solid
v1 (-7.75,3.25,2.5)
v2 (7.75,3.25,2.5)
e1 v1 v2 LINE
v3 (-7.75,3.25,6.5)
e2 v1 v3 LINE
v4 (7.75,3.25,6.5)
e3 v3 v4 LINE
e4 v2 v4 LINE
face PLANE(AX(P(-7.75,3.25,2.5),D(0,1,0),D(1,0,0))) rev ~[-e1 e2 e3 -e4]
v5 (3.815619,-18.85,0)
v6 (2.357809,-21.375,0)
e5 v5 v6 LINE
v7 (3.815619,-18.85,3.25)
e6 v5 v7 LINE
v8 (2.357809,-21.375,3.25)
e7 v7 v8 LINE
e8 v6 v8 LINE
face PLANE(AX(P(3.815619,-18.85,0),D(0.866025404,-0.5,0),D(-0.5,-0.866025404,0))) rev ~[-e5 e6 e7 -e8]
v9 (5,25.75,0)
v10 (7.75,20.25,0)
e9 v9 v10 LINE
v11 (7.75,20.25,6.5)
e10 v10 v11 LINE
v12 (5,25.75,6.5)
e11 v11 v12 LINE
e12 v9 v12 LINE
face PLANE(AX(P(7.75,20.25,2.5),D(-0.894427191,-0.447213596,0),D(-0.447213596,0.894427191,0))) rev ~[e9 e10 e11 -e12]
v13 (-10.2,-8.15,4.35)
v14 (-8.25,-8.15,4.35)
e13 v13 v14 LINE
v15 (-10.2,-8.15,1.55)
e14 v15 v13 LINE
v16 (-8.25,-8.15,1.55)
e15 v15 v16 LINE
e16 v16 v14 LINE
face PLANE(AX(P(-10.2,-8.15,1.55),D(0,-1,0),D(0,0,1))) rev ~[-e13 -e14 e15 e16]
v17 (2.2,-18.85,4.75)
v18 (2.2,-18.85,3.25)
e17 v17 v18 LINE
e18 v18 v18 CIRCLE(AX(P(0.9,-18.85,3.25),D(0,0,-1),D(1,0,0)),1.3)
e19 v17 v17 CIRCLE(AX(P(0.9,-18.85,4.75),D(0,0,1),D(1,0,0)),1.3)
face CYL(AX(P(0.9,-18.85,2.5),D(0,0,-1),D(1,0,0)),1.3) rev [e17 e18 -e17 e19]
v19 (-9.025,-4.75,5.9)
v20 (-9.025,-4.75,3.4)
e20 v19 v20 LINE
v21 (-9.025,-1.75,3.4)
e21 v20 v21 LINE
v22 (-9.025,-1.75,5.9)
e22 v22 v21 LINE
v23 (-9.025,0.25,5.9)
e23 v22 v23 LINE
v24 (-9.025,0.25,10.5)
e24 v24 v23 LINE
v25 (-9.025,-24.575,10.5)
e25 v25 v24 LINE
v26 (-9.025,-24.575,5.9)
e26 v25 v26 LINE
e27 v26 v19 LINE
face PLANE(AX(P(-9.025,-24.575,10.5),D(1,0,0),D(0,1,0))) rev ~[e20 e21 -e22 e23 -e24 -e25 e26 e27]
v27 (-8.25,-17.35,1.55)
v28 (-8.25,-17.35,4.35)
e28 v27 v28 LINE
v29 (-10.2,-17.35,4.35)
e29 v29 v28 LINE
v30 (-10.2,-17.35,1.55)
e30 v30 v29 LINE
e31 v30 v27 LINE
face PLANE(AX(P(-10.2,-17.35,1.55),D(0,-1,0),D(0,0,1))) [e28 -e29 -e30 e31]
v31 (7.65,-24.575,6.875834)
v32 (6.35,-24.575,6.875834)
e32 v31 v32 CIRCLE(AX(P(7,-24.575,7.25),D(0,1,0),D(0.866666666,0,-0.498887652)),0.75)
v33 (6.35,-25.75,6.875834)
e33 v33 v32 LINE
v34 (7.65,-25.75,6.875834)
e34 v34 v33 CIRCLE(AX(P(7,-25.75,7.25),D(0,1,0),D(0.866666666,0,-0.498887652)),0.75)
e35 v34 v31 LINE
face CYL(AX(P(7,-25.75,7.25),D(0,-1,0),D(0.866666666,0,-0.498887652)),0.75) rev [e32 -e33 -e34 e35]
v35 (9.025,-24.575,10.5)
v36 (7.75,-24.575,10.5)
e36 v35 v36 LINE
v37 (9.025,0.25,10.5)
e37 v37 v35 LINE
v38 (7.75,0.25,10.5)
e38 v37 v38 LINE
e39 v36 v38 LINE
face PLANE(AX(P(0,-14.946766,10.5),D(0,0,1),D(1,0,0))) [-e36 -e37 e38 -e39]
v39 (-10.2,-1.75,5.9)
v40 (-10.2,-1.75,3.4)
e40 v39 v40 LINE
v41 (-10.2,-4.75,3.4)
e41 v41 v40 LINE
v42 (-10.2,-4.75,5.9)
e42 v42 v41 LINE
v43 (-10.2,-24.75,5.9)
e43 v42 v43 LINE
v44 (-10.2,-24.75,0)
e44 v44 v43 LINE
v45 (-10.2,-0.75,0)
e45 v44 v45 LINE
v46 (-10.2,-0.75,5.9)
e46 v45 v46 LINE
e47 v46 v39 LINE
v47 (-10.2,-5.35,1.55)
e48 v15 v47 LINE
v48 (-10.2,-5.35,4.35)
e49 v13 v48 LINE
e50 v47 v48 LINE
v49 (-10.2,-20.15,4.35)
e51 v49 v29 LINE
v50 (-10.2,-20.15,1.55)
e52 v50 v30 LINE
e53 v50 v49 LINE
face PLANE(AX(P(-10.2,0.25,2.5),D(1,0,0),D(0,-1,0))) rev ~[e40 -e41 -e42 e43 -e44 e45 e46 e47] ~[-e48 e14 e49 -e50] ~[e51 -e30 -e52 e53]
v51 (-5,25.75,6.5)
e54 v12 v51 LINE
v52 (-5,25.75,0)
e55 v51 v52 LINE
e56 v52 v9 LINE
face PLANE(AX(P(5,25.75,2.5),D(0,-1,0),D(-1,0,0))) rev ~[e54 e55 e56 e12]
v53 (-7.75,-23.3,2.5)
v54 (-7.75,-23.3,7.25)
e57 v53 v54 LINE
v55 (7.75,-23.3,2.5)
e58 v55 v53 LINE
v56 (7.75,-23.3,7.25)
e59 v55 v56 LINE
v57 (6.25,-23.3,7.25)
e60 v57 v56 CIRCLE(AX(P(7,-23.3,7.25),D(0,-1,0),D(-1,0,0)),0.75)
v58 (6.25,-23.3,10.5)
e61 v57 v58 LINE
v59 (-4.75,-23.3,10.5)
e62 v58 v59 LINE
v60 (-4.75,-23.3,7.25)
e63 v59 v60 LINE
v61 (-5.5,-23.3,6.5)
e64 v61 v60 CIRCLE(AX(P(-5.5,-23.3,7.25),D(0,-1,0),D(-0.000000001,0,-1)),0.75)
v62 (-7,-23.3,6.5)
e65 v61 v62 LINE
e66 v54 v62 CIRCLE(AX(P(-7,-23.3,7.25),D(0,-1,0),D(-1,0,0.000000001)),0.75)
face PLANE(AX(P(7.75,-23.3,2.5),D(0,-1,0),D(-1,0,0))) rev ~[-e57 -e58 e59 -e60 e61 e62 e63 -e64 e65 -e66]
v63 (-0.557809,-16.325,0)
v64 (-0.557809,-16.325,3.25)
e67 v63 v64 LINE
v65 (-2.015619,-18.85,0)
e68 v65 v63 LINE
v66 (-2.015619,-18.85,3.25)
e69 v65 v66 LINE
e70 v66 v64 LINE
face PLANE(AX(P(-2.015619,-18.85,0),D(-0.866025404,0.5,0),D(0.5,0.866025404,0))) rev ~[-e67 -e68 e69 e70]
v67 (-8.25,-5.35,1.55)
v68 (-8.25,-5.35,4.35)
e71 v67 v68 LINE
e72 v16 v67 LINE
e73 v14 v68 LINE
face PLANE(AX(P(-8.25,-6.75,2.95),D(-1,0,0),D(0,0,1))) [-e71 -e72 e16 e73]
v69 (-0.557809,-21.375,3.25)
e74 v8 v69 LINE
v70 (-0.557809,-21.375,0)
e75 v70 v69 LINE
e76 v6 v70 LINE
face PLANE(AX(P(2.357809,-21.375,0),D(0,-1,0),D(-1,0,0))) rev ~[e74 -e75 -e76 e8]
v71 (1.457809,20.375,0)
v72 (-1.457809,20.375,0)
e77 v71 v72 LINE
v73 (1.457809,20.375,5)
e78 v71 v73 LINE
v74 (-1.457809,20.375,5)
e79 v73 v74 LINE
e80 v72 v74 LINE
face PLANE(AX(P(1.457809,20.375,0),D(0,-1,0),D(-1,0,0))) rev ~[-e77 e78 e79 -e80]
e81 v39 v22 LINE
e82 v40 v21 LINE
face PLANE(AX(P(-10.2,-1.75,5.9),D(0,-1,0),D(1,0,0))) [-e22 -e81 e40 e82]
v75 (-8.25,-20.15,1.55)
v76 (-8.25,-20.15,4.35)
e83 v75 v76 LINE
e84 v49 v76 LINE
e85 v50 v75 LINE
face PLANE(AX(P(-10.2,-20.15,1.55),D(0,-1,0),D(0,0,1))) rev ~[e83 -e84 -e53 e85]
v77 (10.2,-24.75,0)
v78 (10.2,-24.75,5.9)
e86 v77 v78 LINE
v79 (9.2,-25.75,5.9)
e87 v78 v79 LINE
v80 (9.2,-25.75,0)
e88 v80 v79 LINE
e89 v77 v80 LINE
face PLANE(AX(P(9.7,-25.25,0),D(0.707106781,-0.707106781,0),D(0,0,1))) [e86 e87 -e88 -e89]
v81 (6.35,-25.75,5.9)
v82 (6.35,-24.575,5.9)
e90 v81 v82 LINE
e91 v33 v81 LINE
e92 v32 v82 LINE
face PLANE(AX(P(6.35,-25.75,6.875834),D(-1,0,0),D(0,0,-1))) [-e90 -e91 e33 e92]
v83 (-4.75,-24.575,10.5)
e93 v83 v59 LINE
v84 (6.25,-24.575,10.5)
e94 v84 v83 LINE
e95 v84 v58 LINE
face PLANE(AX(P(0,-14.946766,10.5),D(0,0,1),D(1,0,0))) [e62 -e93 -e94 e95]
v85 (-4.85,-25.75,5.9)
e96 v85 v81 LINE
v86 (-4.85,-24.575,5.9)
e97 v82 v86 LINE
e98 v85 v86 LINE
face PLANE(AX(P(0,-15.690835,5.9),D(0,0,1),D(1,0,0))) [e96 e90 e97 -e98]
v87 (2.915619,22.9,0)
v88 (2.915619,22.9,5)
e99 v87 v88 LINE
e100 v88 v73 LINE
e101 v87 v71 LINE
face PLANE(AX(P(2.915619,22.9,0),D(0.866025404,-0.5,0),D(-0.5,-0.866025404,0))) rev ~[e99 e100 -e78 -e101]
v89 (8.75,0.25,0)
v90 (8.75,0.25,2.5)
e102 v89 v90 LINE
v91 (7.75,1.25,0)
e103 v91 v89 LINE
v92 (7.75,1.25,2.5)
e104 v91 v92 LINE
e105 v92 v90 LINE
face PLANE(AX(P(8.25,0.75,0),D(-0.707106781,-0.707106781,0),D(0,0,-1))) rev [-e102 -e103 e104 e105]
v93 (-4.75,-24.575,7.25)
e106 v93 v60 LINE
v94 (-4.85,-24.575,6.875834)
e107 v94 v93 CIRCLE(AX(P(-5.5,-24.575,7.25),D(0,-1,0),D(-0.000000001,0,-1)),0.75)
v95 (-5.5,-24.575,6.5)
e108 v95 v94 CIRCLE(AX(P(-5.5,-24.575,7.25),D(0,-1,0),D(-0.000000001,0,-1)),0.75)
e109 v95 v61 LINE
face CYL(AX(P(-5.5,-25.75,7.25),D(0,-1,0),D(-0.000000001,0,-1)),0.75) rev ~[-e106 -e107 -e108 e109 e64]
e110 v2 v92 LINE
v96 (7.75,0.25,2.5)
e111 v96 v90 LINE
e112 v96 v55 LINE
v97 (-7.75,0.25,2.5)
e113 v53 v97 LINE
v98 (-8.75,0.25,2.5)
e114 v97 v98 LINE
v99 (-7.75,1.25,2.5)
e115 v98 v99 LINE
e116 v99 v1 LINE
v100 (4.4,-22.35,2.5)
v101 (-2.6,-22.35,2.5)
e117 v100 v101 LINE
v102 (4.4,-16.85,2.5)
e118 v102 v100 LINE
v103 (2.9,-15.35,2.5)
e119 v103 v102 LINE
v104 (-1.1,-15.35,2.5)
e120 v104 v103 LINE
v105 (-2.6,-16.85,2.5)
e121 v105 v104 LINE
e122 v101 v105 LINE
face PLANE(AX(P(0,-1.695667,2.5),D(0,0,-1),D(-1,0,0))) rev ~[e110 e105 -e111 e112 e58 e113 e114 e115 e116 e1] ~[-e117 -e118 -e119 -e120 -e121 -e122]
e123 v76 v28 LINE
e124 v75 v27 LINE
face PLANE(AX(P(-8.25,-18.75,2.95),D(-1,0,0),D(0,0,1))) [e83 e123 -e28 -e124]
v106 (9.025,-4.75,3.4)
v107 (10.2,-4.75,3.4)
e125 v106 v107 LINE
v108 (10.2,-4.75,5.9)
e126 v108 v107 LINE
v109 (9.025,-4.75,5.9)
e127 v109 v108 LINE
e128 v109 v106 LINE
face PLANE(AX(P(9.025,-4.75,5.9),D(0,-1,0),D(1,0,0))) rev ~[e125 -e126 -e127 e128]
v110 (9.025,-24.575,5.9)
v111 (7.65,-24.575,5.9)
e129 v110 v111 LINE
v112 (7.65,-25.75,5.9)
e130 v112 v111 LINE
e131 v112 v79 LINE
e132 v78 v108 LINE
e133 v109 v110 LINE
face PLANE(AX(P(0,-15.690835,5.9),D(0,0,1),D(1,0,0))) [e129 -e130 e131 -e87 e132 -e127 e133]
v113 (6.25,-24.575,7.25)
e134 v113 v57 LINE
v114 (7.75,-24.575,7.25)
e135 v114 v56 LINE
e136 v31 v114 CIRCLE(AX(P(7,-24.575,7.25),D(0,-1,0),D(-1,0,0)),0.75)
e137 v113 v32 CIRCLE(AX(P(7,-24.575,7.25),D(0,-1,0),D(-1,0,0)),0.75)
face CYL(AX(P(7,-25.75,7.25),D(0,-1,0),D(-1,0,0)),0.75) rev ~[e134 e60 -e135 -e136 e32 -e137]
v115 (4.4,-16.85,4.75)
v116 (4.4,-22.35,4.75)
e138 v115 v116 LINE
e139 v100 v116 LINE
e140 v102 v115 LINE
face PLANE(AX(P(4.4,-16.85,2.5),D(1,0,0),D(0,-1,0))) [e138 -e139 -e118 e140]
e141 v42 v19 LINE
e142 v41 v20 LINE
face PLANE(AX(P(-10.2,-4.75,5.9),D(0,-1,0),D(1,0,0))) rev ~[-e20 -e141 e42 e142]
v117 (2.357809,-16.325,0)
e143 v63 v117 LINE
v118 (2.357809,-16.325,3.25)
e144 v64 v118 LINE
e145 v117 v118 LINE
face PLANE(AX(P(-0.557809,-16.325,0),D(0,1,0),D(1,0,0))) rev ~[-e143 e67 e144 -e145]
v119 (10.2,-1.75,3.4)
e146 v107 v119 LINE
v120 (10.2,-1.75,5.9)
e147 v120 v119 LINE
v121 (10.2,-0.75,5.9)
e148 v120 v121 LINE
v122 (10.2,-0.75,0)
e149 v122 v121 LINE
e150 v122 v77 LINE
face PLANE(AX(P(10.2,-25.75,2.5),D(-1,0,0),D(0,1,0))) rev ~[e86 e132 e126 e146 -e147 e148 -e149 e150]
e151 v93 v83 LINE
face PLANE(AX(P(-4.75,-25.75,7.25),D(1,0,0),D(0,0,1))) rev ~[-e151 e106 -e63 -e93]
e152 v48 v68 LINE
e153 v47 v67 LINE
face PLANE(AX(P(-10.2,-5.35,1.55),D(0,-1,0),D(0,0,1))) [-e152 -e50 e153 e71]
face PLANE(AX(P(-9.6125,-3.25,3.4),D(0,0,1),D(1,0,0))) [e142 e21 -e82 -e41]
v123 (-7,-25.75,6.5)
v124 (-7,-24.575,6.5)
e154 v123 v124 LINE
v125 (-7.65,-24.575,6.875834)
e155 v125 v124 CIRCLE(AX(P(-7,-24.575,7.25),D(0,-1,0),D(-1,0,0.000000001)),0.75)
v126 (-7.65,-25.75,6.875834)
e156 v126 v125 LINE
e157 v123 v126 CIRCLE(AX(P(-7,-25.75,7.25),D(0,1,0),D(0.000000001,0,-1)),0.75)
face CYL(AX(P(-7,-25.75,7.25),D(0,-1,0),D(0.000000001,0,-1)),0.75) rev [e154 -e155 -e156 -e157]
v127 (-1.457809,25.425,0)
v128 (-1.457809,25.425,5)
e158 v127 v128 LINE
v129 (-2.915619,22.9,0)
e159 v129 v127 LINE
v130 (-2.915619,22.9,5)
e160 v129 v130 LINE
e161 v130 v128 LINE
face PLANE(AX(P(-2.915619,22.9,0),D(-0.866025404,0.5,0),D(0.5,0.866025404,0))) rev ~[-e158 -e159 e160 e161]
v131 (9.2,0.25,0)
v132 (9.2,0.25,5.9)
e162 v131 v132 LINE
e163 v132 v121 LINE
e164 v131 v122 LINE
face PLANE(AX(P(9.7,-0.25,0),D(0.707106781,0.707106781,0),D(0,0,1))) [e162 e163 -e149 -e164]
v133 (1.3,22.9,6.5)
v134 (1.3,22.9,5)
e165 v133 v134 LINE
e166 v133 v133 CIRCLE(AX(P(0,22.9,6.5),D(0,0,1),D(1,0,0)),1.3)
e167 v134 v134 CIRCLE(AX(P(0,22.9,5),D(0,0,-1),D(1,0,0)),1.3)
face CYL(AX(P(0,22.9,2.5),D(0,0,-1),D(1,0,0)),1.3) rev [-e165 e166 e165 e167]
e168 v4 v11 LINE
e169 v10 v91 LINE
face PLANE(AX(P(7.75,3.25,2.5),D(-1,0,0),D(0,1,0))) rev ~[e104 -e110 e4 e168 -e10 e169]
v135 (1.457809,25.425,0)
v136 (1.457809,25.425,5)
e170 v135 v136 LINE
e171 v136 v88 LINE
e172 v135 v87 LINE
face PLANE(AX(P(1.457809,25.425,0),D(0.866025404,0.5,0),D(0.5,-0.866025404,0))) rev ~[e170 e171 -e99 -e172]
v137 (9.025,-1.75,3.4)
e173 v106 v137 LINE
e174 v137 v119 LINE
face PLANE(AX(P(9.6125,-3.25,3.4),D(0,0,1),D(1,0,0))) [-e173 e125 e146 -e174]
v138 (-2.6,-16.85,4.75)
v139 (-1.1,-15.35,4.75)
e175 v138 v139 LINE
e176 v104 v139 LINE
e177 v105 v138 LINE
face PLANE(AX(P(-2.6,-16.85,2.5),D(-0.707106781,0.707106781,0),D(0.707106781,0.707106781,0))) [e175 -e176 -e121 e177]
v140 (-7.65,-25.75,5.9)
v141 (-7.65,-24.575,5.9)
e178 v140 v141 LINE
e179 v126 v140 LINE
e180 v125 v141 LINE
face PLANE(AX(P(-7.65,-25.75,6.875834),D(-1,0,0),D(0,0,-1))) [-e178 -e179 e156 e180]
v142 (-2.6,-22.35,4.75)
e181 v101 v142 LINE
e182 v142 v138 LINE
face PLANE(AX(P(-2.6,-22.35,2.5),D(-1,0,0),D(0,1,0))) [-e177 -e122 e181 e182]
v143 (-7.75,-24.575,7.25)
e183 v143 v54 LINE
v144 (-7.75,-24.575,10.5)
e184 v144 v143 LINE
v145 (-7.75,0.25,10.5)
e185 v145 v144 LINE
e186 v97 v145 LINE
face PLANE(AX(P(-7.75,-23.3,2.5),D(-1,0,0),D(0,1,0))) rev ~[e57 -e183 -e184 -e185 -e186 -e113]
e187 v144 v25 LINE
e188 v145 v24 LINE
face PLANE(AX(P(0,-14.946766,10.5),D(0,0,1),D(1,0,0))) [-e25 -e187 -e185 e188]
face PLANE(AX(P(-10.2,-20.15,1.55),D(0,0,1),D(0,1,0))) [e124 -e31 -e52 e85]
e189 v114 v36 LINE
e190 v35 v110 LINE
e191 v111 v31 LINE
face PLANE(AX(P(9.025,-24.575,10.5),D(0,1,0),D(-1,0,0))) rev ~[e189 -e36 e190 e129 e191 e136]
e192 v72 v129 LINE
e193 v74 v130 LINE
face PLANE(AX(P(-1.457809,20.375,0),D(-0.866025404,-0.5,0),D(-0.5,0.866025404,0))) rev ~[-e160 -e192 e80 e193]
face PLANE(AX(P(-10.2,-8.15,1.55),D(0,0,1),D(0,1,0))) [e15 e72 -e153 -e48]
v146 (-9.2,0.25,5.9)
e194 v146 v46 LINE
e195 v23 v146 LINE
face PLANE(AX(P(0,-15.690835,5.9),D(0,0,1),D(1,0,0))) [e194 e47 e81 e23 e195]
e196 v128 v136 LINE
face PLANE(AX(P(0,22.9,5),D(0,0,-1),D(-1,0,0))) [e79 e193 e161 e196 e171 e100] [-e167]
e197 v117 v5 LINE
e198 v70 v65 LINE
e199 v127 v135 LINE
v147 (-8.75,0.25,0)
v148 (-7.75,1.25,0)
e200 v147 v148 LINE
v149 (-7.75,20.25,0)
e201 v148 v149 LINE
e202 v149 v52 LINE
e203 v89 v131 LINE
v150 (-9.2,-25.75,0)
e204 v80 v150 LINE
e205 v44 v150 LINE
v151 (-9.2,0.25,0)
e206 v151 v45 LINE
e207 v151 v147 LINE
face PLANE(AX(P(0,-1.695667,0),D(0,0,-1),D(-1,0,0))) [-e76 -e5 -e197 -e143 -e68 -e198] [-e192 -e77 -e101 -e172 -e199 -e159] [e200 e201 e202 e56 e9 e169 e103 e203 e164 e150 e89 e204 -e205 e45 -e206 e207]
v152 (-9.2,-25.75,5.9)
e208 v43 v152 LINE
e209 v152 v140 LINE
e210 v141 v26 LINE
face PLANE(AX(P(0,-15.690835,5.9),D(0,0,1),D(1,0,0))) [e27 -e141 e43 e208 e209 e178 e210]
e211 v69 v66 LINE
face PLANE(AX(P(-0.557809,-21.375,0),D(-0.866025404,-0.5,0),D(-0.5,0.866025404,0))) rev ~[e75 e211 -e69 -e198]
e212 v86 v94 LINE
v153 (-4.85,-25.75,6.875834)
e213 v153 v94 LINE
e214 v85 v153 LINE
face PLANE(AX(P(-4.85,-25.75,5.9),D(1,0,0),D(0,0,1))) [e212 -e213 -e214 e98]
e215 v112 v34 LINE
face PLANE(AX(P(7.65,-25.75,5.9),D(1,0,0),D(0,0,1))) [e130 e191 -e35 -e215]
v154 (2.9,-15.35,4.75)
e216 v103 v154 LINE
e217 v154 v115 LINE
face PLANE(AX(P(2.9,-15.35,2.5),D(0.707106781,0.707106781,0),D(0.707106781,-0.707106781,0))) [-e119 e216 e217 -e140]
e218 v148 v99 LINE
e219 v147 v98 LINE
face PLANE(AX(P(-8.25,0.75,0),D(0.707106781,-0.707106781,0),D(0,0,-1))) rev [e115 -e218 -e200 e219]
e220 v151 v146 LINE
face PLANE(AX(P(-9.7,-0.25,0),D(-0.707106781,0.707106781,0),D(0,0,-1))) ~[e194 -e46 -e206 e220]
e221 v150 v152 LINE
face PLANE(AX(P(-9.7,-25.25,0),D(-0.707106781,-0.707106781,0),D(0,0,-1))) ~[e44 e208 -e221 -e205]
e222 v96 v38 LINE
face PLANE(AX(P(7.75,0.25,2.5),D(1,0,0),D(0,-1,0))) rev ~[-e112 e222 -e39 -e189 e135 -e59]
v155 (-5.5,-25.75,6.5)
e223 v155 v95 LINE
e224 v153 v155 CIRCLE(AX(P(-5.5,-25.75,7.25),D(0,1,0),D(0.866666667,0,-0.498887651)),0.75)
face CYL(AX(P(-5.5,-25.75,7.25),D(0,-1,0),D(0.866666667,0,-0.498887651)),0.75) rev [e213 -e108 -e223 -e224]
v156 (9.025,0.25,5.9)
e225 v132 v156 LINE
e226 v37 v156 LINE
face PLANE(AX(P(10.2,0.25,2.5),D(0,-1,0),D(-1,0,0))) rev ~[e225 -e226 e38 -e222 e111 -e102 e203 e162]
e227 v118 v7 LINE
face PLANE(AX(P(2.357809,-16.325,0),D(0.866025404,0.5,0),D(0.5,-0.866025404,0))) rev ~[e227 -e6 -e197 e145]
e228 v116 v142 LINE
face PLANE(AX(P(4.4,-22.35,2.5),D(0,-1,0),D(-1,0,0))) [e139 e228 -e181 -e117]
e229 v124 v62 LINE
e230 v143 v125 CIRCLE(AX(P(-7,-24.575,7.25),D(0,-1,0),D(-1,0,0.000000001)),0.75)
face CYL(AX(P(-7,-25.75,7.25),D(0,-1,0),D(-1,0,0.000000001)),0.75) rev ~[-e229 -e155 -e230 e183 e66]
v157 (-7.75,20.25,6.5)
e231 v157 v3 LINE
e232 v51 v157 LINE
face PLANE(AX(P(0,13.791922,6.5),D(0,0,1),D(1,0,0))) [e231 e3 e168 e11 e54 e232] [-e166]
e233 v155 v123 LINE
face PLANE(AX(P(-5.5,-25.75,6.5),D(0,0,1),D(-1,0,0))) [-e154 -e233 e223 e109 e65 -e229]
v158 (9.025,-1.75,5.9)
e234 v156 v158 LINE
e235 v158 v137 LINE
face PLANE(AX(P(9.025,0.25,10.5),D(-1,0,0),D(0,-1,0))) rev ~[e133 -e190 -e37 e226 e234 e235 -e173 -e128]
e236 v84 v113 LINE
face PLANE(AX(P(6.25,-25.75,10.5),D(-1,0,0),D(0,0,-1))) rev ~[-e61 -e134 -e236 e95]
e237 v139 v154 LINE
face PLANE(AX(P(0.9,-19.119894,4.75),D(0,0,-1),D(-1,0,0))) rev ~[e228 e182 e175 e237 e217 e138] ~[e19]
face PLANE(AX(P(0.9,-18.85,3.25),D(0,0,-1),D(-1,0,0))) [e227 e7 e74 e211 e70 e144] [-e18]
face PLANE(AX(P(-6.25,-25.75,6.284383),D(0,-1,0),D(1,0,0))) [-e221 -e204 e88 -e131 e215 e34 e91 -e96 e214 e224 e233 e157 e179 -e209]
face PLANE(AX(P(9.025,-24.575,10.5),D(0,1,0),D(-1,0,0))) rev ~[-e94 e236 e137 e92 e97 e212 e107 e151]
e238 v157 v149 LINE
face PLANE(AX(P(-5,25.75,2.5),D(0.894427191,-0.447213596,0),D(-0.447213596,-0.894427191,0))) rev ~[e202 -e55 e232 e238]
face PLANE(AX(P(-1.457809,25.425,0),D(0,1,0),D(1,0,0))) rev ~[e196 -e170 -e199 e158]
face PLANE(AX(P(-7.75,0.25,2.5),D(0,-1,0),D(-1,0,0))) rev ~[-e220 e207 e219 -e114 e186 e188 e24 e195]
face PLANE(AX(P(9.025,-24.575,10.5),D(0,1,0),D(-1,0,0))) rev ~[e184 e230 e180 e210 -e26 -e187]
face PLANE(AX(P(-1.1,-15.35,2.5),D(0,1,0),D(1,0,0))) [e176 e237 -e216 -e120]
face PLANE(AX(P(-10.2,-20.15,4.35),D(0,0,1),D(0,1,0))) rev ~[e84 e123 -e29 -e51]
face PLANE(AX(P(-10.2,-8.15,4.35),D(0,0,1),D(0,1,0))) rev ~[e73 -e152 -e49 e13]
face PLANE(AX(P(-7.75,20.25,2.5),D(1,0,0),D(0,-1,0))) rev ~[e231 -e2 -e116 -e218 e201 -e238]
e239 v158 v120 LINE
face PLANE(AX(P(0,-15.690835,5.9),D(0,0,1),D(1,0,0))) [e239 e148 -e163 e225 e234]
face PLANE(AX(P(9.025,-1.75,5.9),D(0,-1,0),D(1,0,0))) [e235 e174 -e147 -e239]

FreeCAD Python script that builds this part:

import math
import FreeCAD as App
import Part
import Sketcher
Q = App.Units.Quantity


def edges_at(feature, points):
    """Names of the edges that pass closest to the given points."""
    edges = feature.Shape.Edges
    near = lambda p: min(range(len(edges)), key=lambda i: edges[i].distToShape(Part.Vertex(*p))[0])
    return sorted({f"Edge{near(p) + 1}" for p in points})

doc = App.newDocument("Part")
body = doc.addObject("PartDesign::Body", "Body")

# Sketch on XY plane
sketch1 = body.newObject("Sketcher::SketchObject", "Sketch")
sketch1.AttachmentSupport = (doc.getObject("XY_Plane"), [""])
sketch1.MapMode = "FlatFace"
sketch1.addGeometry([
    Part.LineSegment(App.Vector(5, 25.8, 0), App.Vector(-5, 25.8, 0)),  # 0
    Part.LineSegment(App.Vector(-5, 25.8, 0), App.Vector(-7.8, 20.2, 0)),  # 1
    Part.LineSegment(App.Vector(-7.8, 20.2, 0), App.Vector(-7.8, 0.2, 0)),  # 2
    Part.LineSegment(App.Vector(-7.8, 0.2, 0), App.Vector(-10.2, 0.2, 0)),  # 3
    Part.LineSegment(App.Vector(-10.2, 0.2, 0), App.Vector(-10.2, -25.8, 0)),  # 4
    Part.LineSegment(App.Vector(-10.2, -25.8, 0), App.Vector(10.2, -25.8, 0)),  # 5
    Part.LineSegment(App.Vector(10.2, -25.8, 0), App.Vector(10.2, 0.2, 0)),  # 6
    Part.LineSegment(App.Vector(10.2, 0.2, 0), App.Vector(7.8, 0.2, 0)),  # 7
    Part.LineSegment(App.Vector(7.8, 0.2, 0), App.Vector(7.8, 20.2, 0)),  # 8
    Part.LineSegment(App.Vector(7.8, 20.2, 0), App.Vector(5, 25.8, 0)),  # 9
    Part.Circle(App.Vector(0.9, -18.9, 0), App.Vector(0, 0, 1), 1.3),  # 10
    Part.Circle(App.Vector(0, 22.9, 0), App.Vector(0, 0, 1), 1.3),  # 11
], False)
sketch1.addConstraint([
    Sketcher.Constraint("Coincident", 0, 2, 1, 1),
    Sketcher.Constraint("Coincident", 1, 2, 2, 1),
    Sketcher.Constraint("Coincident", 2, 2, 3, 1),
    Sketcher.Constraint("Coincident", 3, 2, 4, 1),
    Sketcher.Constraint("Coincident", 4, 2, 5, 1),
    Sketcher.Constraint("Coincident", 5, 2, 6, 1),
    Sketcher.Constraint("Coincident", 6, 2, 7, 1),
    Sketcher.Constraint("Coincident", 7, 2, 8, 1),
    Sketcher.Constraint("Coincident", 8, 2, 9, 1),
    Sketcher.Constraint("Coincident", 9, 2, 0, 1),
    Sketcher.Constraint("Horizontal", 0),
    Sketcher.Constraint("Vertical", 2),
    Sketcher.Constraint("Horizontal", 3),
    Sketcher.Constraint("Vertical", 4),
    Sketcher.Constraint("Horizontal", 5),
    Sketcher.Constraint("Vertical", 6),
    Sketcher.Constraint("Horizontal", 7),
    Sketcher.Constraint("Vertical", 8),
    Sketcher.Constraint("Equal", 10, 11),
    Sketcher.Constraint("Symmetric", 3, 2, 6, 2, -2),
    Sketcher.Constraint("Symmetric", 1, 2, 8, 2, -2),
    Sketcher.Constraint("PointOnObject", 11, 3, -2),
    Sketcher.Constraint("Equal", 1, 9),
    Sketcher.Constraint("Diameter", 10, Q("2.6 mm")),
    Sketcher.Constraint("DistanceX", 0, 2, 0, 1, Q("10 mm")),
    Sketcher.Constraint("DistanceY", 2, 2, 2, 1, Q("20 mm")),
    Sketcher.Constraint("DistanceY", 4, 2, 4, 1, Q("26 mm")),
    Sketcher.Constraint("DistanceX", 5, 1, 5, 2, Q("20.4 mm")),
    Sketcher.Constraint("DistanceX", 3, 2, 3, 1, Q("2.45 mm")),
    Sketcher.Constraint("DistanceX", -1, 1, 10, 3, Q("0.9 mm")),
    Sketcher.Constraint("DistanceY", -1, 1, 11, 3, Q("22.9 mm")),
    Sketcher.Constraint("DistanceY", 10, 3, 0, 2, Q("44.6 mm")),
    Sketcher.Constraint("DistanceY", 1, 2, 0, 2, Q("5.5 mm")),
    Sketcher.Constraint("DistanceY", 10, 3, -1, 1, Q("18.85 mm")),
])
pad1 = body.newObject("PartDesign::Pad", "Pad")
pad1.Profile = sketch1
pad1.Length = 2.5

# Sketch on XY plane
sketch2 = body.newObject("Sketcher::SketchObject", "Sketch001")
sketch2.AttachmentSupport = (doc.getObject("XY_Plane"), [""])
sketch2.MapMode = "FlatFace"
sketch2.AttachmentOffset = App.Placement(App.Vector(0, 0, 2.5), App.Rotation())
sketch2.addGeometry([
    Part.LineSegment(App.Vector(-7.8, 3.2, 0), App.Vector(7.8, 3.2, 0)),  # 0
    Part.LineSegment(App.Vector(7.8, 3.2, 0), App.Vector(7.8, 20.2, 0)),  # 1
    Part.LineSegment(App.Vector(7.8, 20.2, 0), App.Vector(5, 25.8, 0)),  # 2
    Part.LineSegment(App.Vector(5, 25.8, 0), App.Vector(-5, 25.8, 0)),  # 3
    Part.LineSegment(App.Vector(-5, 25.8, 0), App.Vector(-7.8, 20.2, 0)),  # 4
    Part.LineSegment(App.Vector(-7.8, 20.2, 0), App.Vector(-7.8, 3.2, 0)),  # 5
    Part.Circle(App.Vector(0, 22.9, 0), App.Vector(0, 0, 1), 1.3),  # 6
], False)
sketch2.addConstraint([
    Sketcher.Constraint("Coincident", 0, 2, 1, 1),
    Sketcher.Constraint("Coincident", 1, 2, 2, 1),
    Sketcher.Constraint("Coincident", 2, 2, 3, 1),
    Sketcher.Constraint("Coincident", 3, 2, 4, 1),
    Sketcher.Constraint("Coincident", 4, 2, 5, 1),
    Sketcher.Constraint("Coincident", 5, 2, 0, 1),
    Sketcher.Constraint("Horizontal", 0),
    Sketcher.Constraint("Vertical", 1),
    Sketcher.Constraint("Horizontal", 3),
    Sketcher.Constraint("Vertical", 5),
    Sketcher.Constraint("Symmetric", 1, 2, 4, 2, -2),
    Sketcher.Constraint("PointOnObject", 6, 3, -2),
    Sketcher.Constraint("Equal", 2, 4),
    Sketcher.Constraint("Diameter", 6, Q("2.6 mm")),
    Sketcher.Constraint("DistanceX", 3, 2, 3, 1, Q("10 mm")),
    Sketcher.Constraint("DistanceY", 1, 1, 1, 2, Q("17 mm")),
    Sketcher.Constraint("DistanceX", 0, 1, 0, 2, Q("15.5 mm")),
    Sketcher.Constraint("DistanceY", -1, 1, 6, 3, Q("22.9 mm")),
    Sketcher.Constraint("DistanceY", 1, 2, 2, 2, Q("5.5 mm")),
    Sketcher.Constraint("DistanceY", -1, 1, 0, 2, Q("3.25 mm")),
])
pad2 = body.newObject("PartDesign::Pad", "Pad001")
pad2.Profile = sketch2
pad2.Length = 4

# Sketch on XY plane
sketch3 = body.newObject("Sketcher::SketchObject", "Sketch002")
sketch3.AttachmentSupport = (doc.getObject("XY_Plane"), [""])
sketch3.MapMode = "FlatFace"
sketch3.AttachmentOffset = App.Placement(App.Vector(0, 0, 2.5), App.Rotation())
sketch3.addGeometry([
    Part.LineSegment(App.Vector(2.9, -15.3, 0), App.Vector(-1.1, -15.3, 0)),  # 0
    Part.LineSegment(App.Vector(-1.1, -15.3, 0), App.Vector(-2.6, -16.9, 0)),  # 1
    Part.LineSegment(App.Vector(-2.6, -16.9, 0), App.Vector(-2.6, -22.4, 0)),  # 2
    Part.LineSegment(App.Vector(-2.6, -22.4, 0), App.Vector(4.4, -22.4, 0)),  # 3
    Part.LineSegment(App.Vector(4.4, -22.4, 0), App.Vector(4.4, -16.9, 0)),  # 4
    Part.LineSegment(App.Vector(4.4, -16.9, 0), App.Vector(2.9, -15.3, 0)),  # 5
    Part.Circle(App.Vector(0.9, -18.9, 0), App.Vector(0, 0, 1), 1.3),  # 6
], False)
sketch3.addConstraint([
    Sketcher.Constraint("Coincident", 0, 2, 1, 1),
    Sketcher.Constraint("Coincident", 1, 2, 2, 1),
    Sketcher.Constraint("Coincident", 2, 2, 3, 1),
    Sketcher.Constraint("Coincident", 3, 2, 4, 1),
    Sketcher.Constraint("Coincident", 4, 2, 5, 1),
    Sketcher.Constraint("Coincident", 5, 2, 0, 1),
    Sketcher.Constraint("Horizontal", 0),
    Sketcher.Constraint("Vertical", 2),
    Sketcher.Constraint("Horizontal", 3),
    Sketcher.Constraint("Vertical", 4),
    Sketcher.Constraint("Perpendicular", 1, 5),
    Sketcher.Constraint("Horizontal", 1, 2, 4, 2),
    Sketcher.Constraint("Equal", 1, 5),
    Sketcher.Constraint("Diameter", 6, Q("2.6 mm")),
    Sketcher.Constraint("DistanceX", 0, 2, 0, 1, Q("4 mm")),
    Sketcher.Constraint("DistanceX", 3, 1, 3, 2, Q("7 mm")),
    Sketcher.Constraint("DistanceY", 2, 2, 2, 1, Q("5.5 mm")),
    Sketcher.Constraint("DistanceX", 0, 2, 6, 3, Q("2 mm")),
    Sketcher.Constraint("DistanceY", 6, 3, 1, 2, Q("2 mm")),
    Sketcher.Constraint("DistanceX", -1, 1, 6, 3, Q("0.9 mm")),
    Sketcher.Constraint("DistanceY", 6, 3, -1, 1, Q("18.85 mm")),
])
pad3 = body.newObject("PartDesign::Pad", "Pad002")
pad3.Profile = sketch3
pad3.Length = 2.25

# Sketch on XY plane
sketch4 = body.newObject("Sketcher::SketchObject", "Sketch003")
sketch4.AttachmentSupport = (doc.getObject("XY_Plane"), [""])
sketch4.MapMode = "FlatFace"
sketch4.addGeometry([
    Part.LineSegment(App.Vector(-2.9, 22.9, 0), App.Vector(-1.5, 25.4, 0)),  # 0
    Part.LineSegment(App.Vector(-1.5, 25.4, 0), App.Vector(1.5, 25.4, 0)),  # 1
    Part.LineSegment(App.Vector(1.5, 25.4, 0), App.Vector(2.9, 22.9, 0)),  # 2
    Part.LineSegment(App.Vector(2.9, 22.9, 0), App.Vector(1.5, 20.4, 0)),  # 3
    Part.LineSegment(App.Vector(1.5, 20.4, 0), App.Vector(-1.5, 20.4, 0)),  # 4
    Part.LineSegment(App.Vector(-1.5, 20.4, 0), App.Vector(-2.9, 22.9, 0)),  # 5
], False)
sketch4.addConstraint([
    Sketcher.Constraint("Coincident", 0, 2, 1, 1),
    Sketcher.Constraint("Coincident", 1, 2, 2, 1),
    Sketcher.Constraint("Coincident", 2, 2, 3, 1),
    Sketcher.Constraint("Coincident", 3, 2, 4, 1),
    Sketcher.Constraint("Coincident", 4, 2, 5, 1),
    Sketcher.Constraint("Coincident", 5, 2, 0, 1),
    Sketcher.Constraint("Horizontal", 1),
    Sketcher.Constraint("Horizontal", 4),
    Sketcher.Constraint("Symmetric", 2, 2, 5, 2, -2),
    Sketcher.Constraint("Parallel", 0, 3),
    Sketcher.Constraint("Parallel", 2, 5),
    Sketcher.Constraint("Vertical", 1, 2, 3, 2),
    Sketcher.Constraint("Vertical", 0, 2, 4, 2),
    Sketcher.Constraint("Angle", 0, Q("60 deg")),
    Sketcher.Constraint("DistanceY", -1, 1, 2, 2, Q("22.9 mm")),
    Sketcher.Constraint("DistanceY", 3, 2, 1, 2, Q("5.05 mm")),
    Sketcher.Constraint("DistanceX", 1, 1, 1, 2, Q("2.915619 mm")),
])
pocket1 = body.newObject("PartDesign::Pocket", "Pocket")
pocket1.Profile = sketch4
pocket1.Length = 5
pocket1.Reversed = True

# Sketch on XY plane
sketch5 = body.newObject("Sketcher::SketchObject", "Sketch004")
sketch5.AttachmentSupport = (doc.getObject("XY_Plane"), [""])
sketch5.MapMode = "FlatFace"
sketch5.addGeometry([
    Part.LineSegment(App.Vector(-2, -18.9, 0), App.Vector(-0.6, -16.3, 0)),  # 0
    Part.LineSegment(App.Vector(-0.6, -16.3, 0), App.Vector(2.4, -16.3, 0)),  # 1
    Part.LineSegment(App.Vector(2.4, -16.3, 0), App.Vector(3.8, -18.9, 0)),  # 2
    Part.LineSegment(App.Vector(3.8, -18.9, 0), App.Vector(2.4, -21.4, 0)),  # 3
    Part.LineSegment(App.Vector(2.4, -21.4, 0), App.Vector(-0.6, -21.4, 0)),  # 4
    Part.LineSegment(App.Vector(-0.6, -21.4, 0), App.Vector(-2, -18.9, 0)),  # 5
], False)
sketch5.addConstraint([
    Sketcher.Constraint("Coincident", 0, 2, 1, 1),
    Sketcher.Constraint("Coincident", 1, 2, 2, 1),
    Sketcher.Constraint("Coincident", 2, 2, 3, 1),
    Sketcher.Constraint("Coincident", 3, 2, 4, 1),
    Sketcher.Constraint("Coincident", 4, 2, 5, 1),
    Sketcher.Constraint("Coincident", 5, 2, 0, 1),
    Sketcher.Constraint("Horizontal", 1),
    Sketcher.Constraint("Horizontal", 4),
    Sketcher.Constraint("Parallel", 0, 3),
    Sketcher.Constraint("Parallel", 2, 5),
    Sketcher.Constraint("Horizontal", 2, 2, 5, 2),
    Sketcher.Constraint("Vertical", 1, 2, 3, 2),
    Sketcher.Constraint("Vertical", 0, 2, 4, 2),
    Sketcher.Constraint("Angle", 0, Q("60 deg")),
    Sketcher.Constraint("DistanceY", 2, 2, -1, 1, Q("18.85 mm")),
    Sketcher.Constraint("DistanceY", 3, 2, 1, 2, Q("5.05 mm")),
    Sketcher.Constraint("DistanceX", 1, 1, 1, 2, Q("2.915619 mm")),
    Sketcher.Constraint("DistanceX", 0, 2, -1, 1, Q("0.557809 mm")),
])
pocket2 = body.newObject("PartDesign::Pocket", "Pocket001")
pocket2.Profile = sketch5
pocket2.Length = 3.25
pocket2.Reversed = True

# Sketch on XY plane
sketch6 = body.newObject("Sketcher::SketchObject", "Sketch005")
sketch6.AttachmentSupport = (doc.getObject("XY_Plane"), [""])
sketch6.MapMode = "FlatFace"
sketch6.AttachmentOffset = App.Placement(App.Vector(0, 0, 2.5), App.Rotation())
sketch6.addGeometry([
    Part.LineSegment(App.Vector(-7.8, 0.2, 0), App.Vector(-10.2, 0.2, 0)),  # 0
    Part.LineSegment(App.Vector(-10.2, 0.2, 0), App.Vector(-10.2, -25.8, 0)),  # 1
    Part.LineSegment(App.Vector(-10.2, -25.8, 0), App.Vector(10.2, -25.8, 0)),  # 2
    Part.LineSegment(App.Vector(10.2, -25.8, 0), App.Vector(10.2, 0.2, 0)),  # 3
    Part.LineSegment(App.Vector(10.2, 0.2, 0), App.Vector(7.8, 0.2, 0)),  # 4
    Part.LineSegment(App.Vector(7.8, 0.2, 0), App.Vector(7.8, -23.3, 0)),  # 5
    Part.LineSegment(App.Vector(7.8, -23.3, 0), App.Vector(-7.8, -23.3, 0)),  # 6
    Part.LineSegment(App.Vector(-7.8, -23.3, 0), App.Vector(-7.8, 0.2, 0)),  # 7
], False)
sketch6.addConstraint([
    Sketcher.Constraint("Coincident", 0, 2, 1, 1),
    Sketcher.Constraint("Coincident", 1, 2, 2, 1),
    Sketcher.Constraint("Coincident", 2, 2, 3, 1),
    Sketcher.Constraint("Coincident", 3, 2, 4, 1),
    Sketcher.Constraint("Coincident", 4, 2, 5, 1),
    Sketcher.Constraint("Coincident", 5, 2, 6, 1),
    Sketcher.Constraint("Coincident", 6, 2, 7, 1),
    Sketcher.Constraint("Coincident", 7, 2, 0, 1),
    Sketcher.Constraint("Horizontal", 0),
    Sketcher.Constraint("Vertical", 1),
    Sketcher.Constraint("Horizontal", 2),
    Sketcher.Constraint("Vertical", 3),
    Sketcher.Constraint("Horizontal", 4),
    Sketcher.Constraint("Vertical", 5),
    Sketcher.Constraint("Horizontal", 6),
    Sketcher.Constraint("Vertical", 7),
    Sketcher.Constraint("Symmetric", 0, 2, 3, 2, -2),
    Sketcher.Constraint("Equal", 0, 4),
    Sketcher.Constraint("DistanceY", 1, 2, 1, 1, Q("26 mm")),
    Sketcher.Constraint("DistanceX", 2, 1, 2, 2, Q("20.4 mm")),
    Sketcher.Constraint("DistanceX", 6, 2, 6, 1, Q("15.5 mm")),
    Sketcher.Constraint("DistanceY", 5, 2, 5, 1, Q("23.55 mm")),
    Sketcher.Constraint("DistanceY", 5, 2, -1, 1, Q("23.3 mm")),
])
pad4 = body.newObject("PartDesign::Pad", "Pad003")
pad4.Profile = sketch6
pad4.Length = 8

# Sketch on XZ plane
sketch7 = body.newObject("Sketcher::SketchObject", "Sketch006")
sketch7.AttachmentSupport = (doc.getObject("XZ_Plane"), [""])
sketch7.MapMode = "FlatFace"
sketch7.AttachmentOffset = App.Placement(App.Vector(0, 0, 25.75), App.Rotation())
sketch7.addGeometry([
    Part.LineSegment(App.Vector(-7.8, 10.5, 0), App.Vector(-7.8, 7.2, 0)),  # 0
    Part.ArcOfCircle(Part.Circle(App.Vector(-7, 7.2, 0), App.Vector(0, 0, 1), 0.8), math.radians(180), math.radians(270)),  # 1
    Part.LineSegment(App.Vector(-7, 6.5, 0), App.Vector(-5.5, 6.5, 0)),  # 2
    Part.ArcOfCircle(Part.Circle(App.Vector(-5.5, 7.2, 0), App.Vector(0, 0, 1), 0.8), math.radians(-90), math.radians(0)),  # 3
    Part.LineSegment(App.Vector(-4.8, 7.2, 0), App.Vector(-4.8, 10.5, 0)),  # 4
    Part.LineSegment(App.Vector(-4.8, 10.5, 0), App.Vector(-7.8, 10.5, 0)),  # 5
], False)
sketch7.addConstraint([
    Sketcher.Constraint("Tangent", 0, 2, 1, 1),
    Sketcher.Constraint("Tangent", 1, 2, 2, 1),
    Sketcher.Constraint("Tangent", 2, 2, 3, 1),
    Sketcher.Constraint("Tangent", 3, 2, 4, 1),
    Sketcher.Constraint("Coincident", 4, 2, 5, 1),
    Sketcher.Constraint("Coincident", 5, 2, 0, 1),
    Sketcher.Constraint("Vertical", 0),
    Sketcher.Constraint("Horizontal", 2),
    Sketcher.Constraint("Vertical", 4),
    Sketcher.Constraint("Horizontal", 5),
    Sketcher.Constraint("Equal", 1, 3),
    Sketcher.Constraint("DistanceX", 5, 2, 5, 1, Q("3 mm")),
    Sketcher.Constraint("Radius", 1, Q("0.75 mm")),
    Sketcher.Constraint("DistanceX", 1, 3, -1, 1, Q("7 mm")),
    Sketcher.Constraint("DistanceY", 2, 2, 4, 2, Q("4 mm")),
    Sketcher.Constraint("DistanceY", -1, 1, 1, 2, Q("6.5 mm")),
])
pocket3 = body.newObject("PartDesign::Pocket", "Pocket002")
pocket3.Profile = sketch7
pocket3.Type = "UpToFirst"

# Sketch on XZ plane
sketch8 = body.newObject("Sketcher::SketchObject", "Sketch007")
sketch8.AttachmentSupport = (doc.getObject("XZ_Plane"), [""])
sketch8.MapMode = "FlatFace"
sketch8.AttachmentOffset = App.Placement(App.Vector(0, 0, 25.75), App.Rotation())
sketch8.addGeometry([
    Part.LineSegment(App.Vector(6.2, 10.5, 0), App.Vector(6.2, 7.2, 0)),
    Part.ArcOfCircle(Part.Circle(App.Vector(7, 7.2, 0), App.Vector(0, 0, 1), 0.8), math.radians(180), math.radians(360)),
    Part.LineSegment(App.Vector(7.8, 7.2, 0), App.Vector(7.8, 10.5, 0)),
    Part.LineSegment(App.Vector(7.8, 10.5, 0), App.Vector(6.2, 10.5, 0)),
], False)
sketch8.addConstraint([
    Sketcher.Constraint("Tangent", 0, 2, 1, 1),
    Sketcher.Constraint("Tangent", 1, 2, 2, 1),
    Sketcher.Constraint("Coincident", 2, 2, 3, 1),
    Sketcher.Constraint("Coincident", 3, 2, 0, 1),
    Sketcher.Constraint("Vertical", 0),
    Sketcher.Constraint("Vertical", 2),
    Sketcher.Constraint("Horizontal", 3),
    Sketcher.Constraint("Radius", 1, Q("0.75 mm")),
    Sketcher.Constraint("DistanceX", -1, 1, 1, 3, Q("7 mm")),
    Sketcher.Constraint("DistanceY", 0, 2, 0, 1, Q("3.25 mm")),
    Sketcher.Constraint("DistanceY", -1, 1, 2, 2, Q("10.5 mm")),
])
pocket4 = body.newObject("PartDesign::Pocket", "Pocket003")
pocket4.Profile = sketch8
pocket4.Type = "UpToFirst"

# Sketch on XY plane
sketch9 = body.newObject("Sketcher::SketchObject", "Sketch008")
sketch9.AttachmentSupport = (doc.getObject("XY_Plane"), [""])
sketch9.MapMode = "FlatFace"
sketch9.AttachmentOffset = App.Placement(App.Vector(0, 0, 10.5), App.Rotation())
sketch9.addGeometry([
    Part.LineSegment(App.Vector(-9, 0.2, 0), App.Vector(-10.2, 0.2, 0)),  # 0
    Part.LineSegment(App.Vector(-10.2, 0.2, 0), App.Vector(-10.2, -25.8, 0)),  # 1
    Part.LineSegment(App.Vector(-10.2, -25.8, 0), App.Vector(10.2, -25.8, 0)),  # 2
    Part.LineSegment(App.Vector(10.2, -25.8, 0), App.Vector(10.2, 0.2, 0)),  # 3
    Part.LineSegment(App.Vector(10.2, 0.2, 0), App.Vector(9, 0.2, 0)),  # 4
    Part.LineSegment(App.Vector(9, 0.2, 0), App.Vector(9, -24.6, 0)),  # 5
    Part.LineSegment(App.Vector(9, -24.6, 0), App.Vector(-9, -24.6, 0)),  # 6
    Part.LineSegment(App.Vector(-9, -24.6, 0), App.Vector(-9, 0.2, 0)),  # 7
], False)
sketch9.addConstraint([
    Sketcher.Constraint("Coincident", 0, 2, 1, 1),
    Sketcher.Constraint("Coincident", 1, 2, 2, 1),
    Sketcher.Constraint("Coincident", 2, 2, 3, 1),
    Sketcher.Constraint("Coincident", 3, 2, 4, 1),
    Sketcher.Constraint("Coincident", 4, 2, 5, 1),
    Sketcher.Constraint("Coincident", 5, 2, 6, 1),
    Sketcher.Constraint("Coincident", 6, 2, 7, 1),
    Sketcher.Constraint("Coincident", 7, 2, 0, 1),
    Sketcher.Constraint("Horizontal", 0),
    Sketcher.Constraint("Vertical", 1),
    Sketcher.Constraint("Horizontal", 2),
    Sketcher.Constraint("Vertical", 3),
    Sketcher.Constraint("Horizontal", 4),
    Sketcher.Constraint("Vertical", 5),
    Sketcher.Constraint("Horizontal", 6),
    Sketcher.Constraint("Vertical", 7),
    Sketcher.Constraint("Symmetric", 0, 2, 3, 2, -2),
    Sketcher.Constraint("Equal", 0, 4),
    Sketcher.Constraint("DistanceY", 1, 2, 1, 1, Q("26 mm")),
    Sketcher.Constraint("DistanceX", 2, 1, 2, 2, Q("20.4 mm")),
    Sketcher.Constraint("DistanceX", 6, 2, 6, 1, Q("18.05 mm")),
    Sketcher.Constraint("DistanceY", 5, 2, 5, 1, Q("24.825 mm")),
    Sketcher.Constraint("DistanceY", -1, 1, 0, 2, Q("0.25 mm")),
])
pocket5 = body.newObject("PartDesign::Pocket", "Pocket004")
pocket5.Profile = sketch9
pocket5.Length = 4.6
doc.recompute()

chamfer = body.newObject("PartDesign::Chamfer", "Chamfer")
chamfer.Base = (pocket5, edges_at(pocket5, [
    (-7.75, 0.25, 1.25),
    (7.75, 0.25, 1.25),
    (-10.2, -25.75, 2.95),
    (-10.2, 0.25, 2.95),
    (10.2, 0.25, 2.95),
    (10.2, -25.75, 2.95),
]))
chamfer.Size = 1

# Sketch on YZ plane
sketch10 = body.newObject("Sketcher::SketchObject", "Sketch009")
sketch10.AttachmentSupport = (doc.getObject("YZ_Plane"), [""])
sketch10.MapMode = "FlatFace"
sketch10.AttachmentOffset = App.Placement(App.Vector(0, 0, -10.2), App.Rotation())
sketch10.addGeometry([
    Part.LineSegment(App.Vector(-5.3, 1.6, 0), App.Vector(-8.2, 1.6, 0)),  # 0
    Part.LineSegment(App.Vector(-8.2, 1.6, 0), App.Vector(-8.2, 4.3, 0)),  # 1
    Part.LineSegment(App.Vector(-8.2, 4.3, 0), App.Vector(-5.3, 4.3, 0)),  # 2
    Part.LineSegment(App.Vector(-5.3, 4.3, 0), App.Vector(-5.3, 1.6, 0)),  # 3
    Part.LineSegment(App.Vector(-17.4, 1.6, 0), App.Vector(-20.1, 1.6, 0)),  # 4
    Part.LineSegment(App.Vector(-20.1, 1.6, 0), App.Vector(-20.1, 4.3, 0)),  # 5
    Part.LineSegment(App.Vector(-20.1, 4.3, 0), App.Vector(-17.4, 4.3, 0)),  # 6
    Part.LineSegment(App.Vector(-17.4, 4.3, 0), App.Vector(-17.4, 1.6, 0)),  # 7
], False)
sketch10.addConstraint([
    Sketcher.Constraint("Coincident", 0, 2, 1, 1),
    Sketcher.Constraint("Coincident", 1, 2, 2, 1),
    Sketcher.Constraint("Coincident", 2, 2, 3, 1),
    Sketcher.Constraint("Coincident", 3, 2, 0, 1),
    Sketcher.Constraint("Coincident", 4, 2, 5, 1),
    Sketcher.Constraint("Coincident", 5, 2, 6, 1),
    Sketcher.Constraint("Coincident", 6, 2, 7, 1),
    Sketcher.Constraint("Coincident", 7, 2, 4, 1),
    Sketcher.Constraint("Horizontal", 0),
    Sketcher.Constraint("Vertical", 1),
    Sketcher.Constraint("Horizontal", 2),
    Sketcher.Constraint("Vertical", 3),
    Sketcher.Constraint("Horizontal", 4),
    Sketcher.Constraint("Vertical", 5),
    Sketcher.Constraint("Horizontal", 6),
    Sketcher.Constraint("Vertical", 7),
    Sketcher.Constraint("Horizontal", 3, 2, 4, 2),
    Sketcher.Constraint("Horizontal", 2, 2, 5, 2),
    Sketcher.Constraint("Equal", 2, 4),
    Sketcher.Constraint("Equal", 6, 1),
    Sketcher.Constraint("DistanceX", 0, 2, 0, 1, Q("2.8 mm")),
    Sketcher.Constraint("DistanceX", 4, 2, 0, 2, Q("12 mm")),
    Sketcher.Constraint("DistanceX", 0, 2, -1, 1, Q("8.15 mm")),
    Sketcher.Constraint("DistanceY", -1, 1, 0, 2, Q("1.55 mm")),
])
pocket6 = body.newObject("PartDesign::Pocket", "Pocket005")
pocket6.Profile = sketch10
pocket6.Length = 1.95
pocket6.Reversed = True

# Sketch on XY plane
sketch11 = body.newObject("Sketcher::SketchObject", "Sketch010")
sketch11.AttachmentSupport = (doc.getObject("XY_Plane"), [""])
sketch11.MapMode = "FlatFace"
sketch11.AttachmentOffset = App.Placement(App.Vector(0, 0, 5.9), App.Rotation())
sketch11.addGeometry([
    Part.LineSegment(App.Vector(-10.2, -1.8, 0), App.Vector(-10.2, -4.8, 0)),  # 0
    Part.LineSegment(App.Vector(-10.2, -4.8, 0), App.Vector(-9, -4.8, 0)),  # 1
    Part.LineSegment(App.Vector(-9, -4.8, 0), App.Vector(-9, -1.8, 0)),  # 2
    Part.LineSegment(App.Vector(-9, -1.8, 0), App.Vector(-10.2, -1.8, 0)),  # 3
    Part.LineSegment(App.Vector(9, -1.8, 0), App.Vector(9, -4.8, 0)),  # 4
    Part.LineSegment(App.Vector(9, -4.8, 0), App.Vector(10.2, -4.8, 0)),  # 5
    Part.LineSegment(App.Vector(10.2, -4.8, 0), App.Vector(10.2, -1.8, 0)),  # 6
    Part.LineSegment(App.Vector(10.2, -1.8, 0), App.Vector(9, -1.8, 0)),  # 7
], False)
sketch11.addConstraint([
    Sketcher.Constraint("Coincident", 0, 2, 1, 1),
    Sketcher.Constraint("Coincident", 1, 2, 2, 1),
    Sketcher.Constraint("Coincident", 2, 2, 3, 1),
    Sketcher.Constraint("Coincident", 3, 2, 0, 1),
    Sketcher.Constraint("Coincident", 4, 2, 5, 1),
    Sketcher.Constraint("Coincident", 5, 2, 6, 1),
    Sketcher.Constraint("Coincident", 6, 2, 7, 1),
    Sketcher.Constraint("Coincident", 7, 2, 4, 1),
    Sketcher.Constraint("Vertical", 0),
    Sketcher.Constraint("Horizontal", 1),
    Sketcher.Constraint("Vertical", 2),
    Sketcher.Constraint("Horizontal", 3),
    Sketcher.Constraint("Vertical", 4),
    Sketcher.Constraint("Horizontal", 5),
    Sketcher.Constraint("Vertical", 6),
    Sketcher.Constraint("Horizontal", 7),
    Sketcher.Constraint("Symmetric", 1, 2, 4, 2, -2),
    Sketcher.Constraint("Symmetric", 3, 2, 6, 2, -2),
    Sketcher.Constraint("DistanceY", 0, 2, 0, 1, Q("3 mm")),
    Sketcher.Constraint("DistanceX", 0, 2, -1, 1, Q("10.2 mm")),
    Sketcher.Constraint("DistanceX", 1, 1, 1, 2, Q("1.175 mm")),
    Sketcher.Constraint("DistanceY", 0, 2, -1, 1, Q("4.75 mm")),
])
pocket7 = body.newObject("PartDesign::Pocket", "Pocket006")
pocket7.Profile = sketch11
pocket7.Length = 2.5

# Sketch on XZ plane
sketch12 = body.newObject("Sketcher::SketchObject", "Sketch011")
sketch12.AttachmentSupport = (doc.getObject("XZ_Plane"), [""])
sketch12.MapMode = "FlatFace"
sketch12.AttachmentOffset = App.Placement(App.Vector(0, 0, 25.75), App.Rotation())
sketch12.addGeometry([
    Part.LineSegment(App.Vector(-7.7, 6.9, 0), App.Vector(-7.7, 5.9, 0)),  # 0
    Part.LineSegment(App.Vector(-7.7, 5.9, 0), App.Vector(-4.8, 5.9, 0)),  # 1
    Part.LineSegment(App.Vector(-4.8, 5.9, 0), App.Vector(-4.8, 6.9, 0)),  # 2
    Part.ArcOfCircle(Part.Circle(App.Vector(-5.5, 7.2, 0), App.Vector(0, 0, 1), 0.7), math.radians(-90), math.radians(-30)),  # 3
    Part.LineSegment(App.Vector(-5.5, 6.5, 0), App.Vector(-7, 6.5, 0)),  # 4
    Part.ArcOfCircle(Part.Circle(App.Vector(-7, 7.2, 0), App.Vector(0, 0, 1), 0.7), math.radians(-150), math.radians(-90)),  # 5
    Part.LineSegment(App.Vector(6.3, 6.9, 0), App.Vector(6.3, 5.9, 0)),  # 6
    Part.LineSegment(App.Vector(6.3, 5.9, 0), App.Vector(7.7, 5.9, 0)),  # 7
    Part.LineSegment(App.Vector(7.7, 5.9, 0), App.Vector(7.7, 6.9, 0)),  # 8
    Part.ArcOfCircle(Part.Circle(App.Vector(7, 7.2, 0), App.Vector(0, 0, 1), 0.8), math.radians(-150), math.radians(-30)),  # 9
], False)
sketch12.addConstraint([
    Sketcher.Constraint("Coincident", 0, 2, 1, 1),
    Sketcher.Constraint("Coincident", 1, 2, 2, 1),
    Sketcher.Constraint("Coincident", 2, 2, 3, 2),
    Sketcher.Constraint("Tangent", 3, 1, 4, 1),
    Sketcher.Constraint("Tangent", 4, 2, 5, 2),
    Sketcher.Constraint("Coincident", 5, 1, 0, 1),
    Sketcher.Constraint("Coincident", 6, 2, 7, 1),
    Sketcher.Constraint("Coincident", 7, 2, 8, 1),
    Sketcher.Constraint("Coincident", 8, 2, 9, 2),
    Sketcher.Constraint("Coincident", 9, 1, 6, 1),
    Sketcher.Constraint("Vertical", 0),
    Sketcher.Constraint("Horizontal", 1),
    Sketcher.Constraint("Vertical", 2),
    Sketcher.Constraint("Horizontal", 4),
    Sketcher.Constraint("Vertical", 6),
    Sketcher.Constraint("Horizontal", 7),
    Sketcher.Constraint("Vertical", 8),
    Sketcher.Constraint("Equal", 3, 5),
    Sketcher.Constraint("Equal", 5, 9),
    Sketcher.Constraint("Symmetric", 5, 3, 9, 3, -2),
    Sketcher.Constraint("Symmetric", 0, 2, 7, 2, -2),
    Sketcher.Constraint("Horizontal", 2, 2, 5, 1),
    Sketcher.Constraint("Horizontal", 8, 2, 9, 1),
    Sketcher.Constraint("Radius", 3, Q("0.75 mm")),
    Sketcher.Constraint("DistanceX", 1, 1, 1, 2, Q("2.8 mm")),
    Sketcher.Constraint("DistanceX", 4, 2, 4, 1, Q("1.5 mm")),
    Sketcher.Constraint("DistanceX", 5, 3, -1, 1, Q("7 mm")),
    Sketcher.Constraint("DistanceY", -1, 1, 0, 2, Q("5.9 mm")),
    Sketcher.Constraint("DistanceY", -1, 1, 3, 1, Q("6.5 mm")),
])
pad5 = body.newObject("PartDesign::Pad", "Pad004")
pad5.Profile = sketch12
pad5.Length = 1.175
pad5.Reversed = True

doc.recompute()
